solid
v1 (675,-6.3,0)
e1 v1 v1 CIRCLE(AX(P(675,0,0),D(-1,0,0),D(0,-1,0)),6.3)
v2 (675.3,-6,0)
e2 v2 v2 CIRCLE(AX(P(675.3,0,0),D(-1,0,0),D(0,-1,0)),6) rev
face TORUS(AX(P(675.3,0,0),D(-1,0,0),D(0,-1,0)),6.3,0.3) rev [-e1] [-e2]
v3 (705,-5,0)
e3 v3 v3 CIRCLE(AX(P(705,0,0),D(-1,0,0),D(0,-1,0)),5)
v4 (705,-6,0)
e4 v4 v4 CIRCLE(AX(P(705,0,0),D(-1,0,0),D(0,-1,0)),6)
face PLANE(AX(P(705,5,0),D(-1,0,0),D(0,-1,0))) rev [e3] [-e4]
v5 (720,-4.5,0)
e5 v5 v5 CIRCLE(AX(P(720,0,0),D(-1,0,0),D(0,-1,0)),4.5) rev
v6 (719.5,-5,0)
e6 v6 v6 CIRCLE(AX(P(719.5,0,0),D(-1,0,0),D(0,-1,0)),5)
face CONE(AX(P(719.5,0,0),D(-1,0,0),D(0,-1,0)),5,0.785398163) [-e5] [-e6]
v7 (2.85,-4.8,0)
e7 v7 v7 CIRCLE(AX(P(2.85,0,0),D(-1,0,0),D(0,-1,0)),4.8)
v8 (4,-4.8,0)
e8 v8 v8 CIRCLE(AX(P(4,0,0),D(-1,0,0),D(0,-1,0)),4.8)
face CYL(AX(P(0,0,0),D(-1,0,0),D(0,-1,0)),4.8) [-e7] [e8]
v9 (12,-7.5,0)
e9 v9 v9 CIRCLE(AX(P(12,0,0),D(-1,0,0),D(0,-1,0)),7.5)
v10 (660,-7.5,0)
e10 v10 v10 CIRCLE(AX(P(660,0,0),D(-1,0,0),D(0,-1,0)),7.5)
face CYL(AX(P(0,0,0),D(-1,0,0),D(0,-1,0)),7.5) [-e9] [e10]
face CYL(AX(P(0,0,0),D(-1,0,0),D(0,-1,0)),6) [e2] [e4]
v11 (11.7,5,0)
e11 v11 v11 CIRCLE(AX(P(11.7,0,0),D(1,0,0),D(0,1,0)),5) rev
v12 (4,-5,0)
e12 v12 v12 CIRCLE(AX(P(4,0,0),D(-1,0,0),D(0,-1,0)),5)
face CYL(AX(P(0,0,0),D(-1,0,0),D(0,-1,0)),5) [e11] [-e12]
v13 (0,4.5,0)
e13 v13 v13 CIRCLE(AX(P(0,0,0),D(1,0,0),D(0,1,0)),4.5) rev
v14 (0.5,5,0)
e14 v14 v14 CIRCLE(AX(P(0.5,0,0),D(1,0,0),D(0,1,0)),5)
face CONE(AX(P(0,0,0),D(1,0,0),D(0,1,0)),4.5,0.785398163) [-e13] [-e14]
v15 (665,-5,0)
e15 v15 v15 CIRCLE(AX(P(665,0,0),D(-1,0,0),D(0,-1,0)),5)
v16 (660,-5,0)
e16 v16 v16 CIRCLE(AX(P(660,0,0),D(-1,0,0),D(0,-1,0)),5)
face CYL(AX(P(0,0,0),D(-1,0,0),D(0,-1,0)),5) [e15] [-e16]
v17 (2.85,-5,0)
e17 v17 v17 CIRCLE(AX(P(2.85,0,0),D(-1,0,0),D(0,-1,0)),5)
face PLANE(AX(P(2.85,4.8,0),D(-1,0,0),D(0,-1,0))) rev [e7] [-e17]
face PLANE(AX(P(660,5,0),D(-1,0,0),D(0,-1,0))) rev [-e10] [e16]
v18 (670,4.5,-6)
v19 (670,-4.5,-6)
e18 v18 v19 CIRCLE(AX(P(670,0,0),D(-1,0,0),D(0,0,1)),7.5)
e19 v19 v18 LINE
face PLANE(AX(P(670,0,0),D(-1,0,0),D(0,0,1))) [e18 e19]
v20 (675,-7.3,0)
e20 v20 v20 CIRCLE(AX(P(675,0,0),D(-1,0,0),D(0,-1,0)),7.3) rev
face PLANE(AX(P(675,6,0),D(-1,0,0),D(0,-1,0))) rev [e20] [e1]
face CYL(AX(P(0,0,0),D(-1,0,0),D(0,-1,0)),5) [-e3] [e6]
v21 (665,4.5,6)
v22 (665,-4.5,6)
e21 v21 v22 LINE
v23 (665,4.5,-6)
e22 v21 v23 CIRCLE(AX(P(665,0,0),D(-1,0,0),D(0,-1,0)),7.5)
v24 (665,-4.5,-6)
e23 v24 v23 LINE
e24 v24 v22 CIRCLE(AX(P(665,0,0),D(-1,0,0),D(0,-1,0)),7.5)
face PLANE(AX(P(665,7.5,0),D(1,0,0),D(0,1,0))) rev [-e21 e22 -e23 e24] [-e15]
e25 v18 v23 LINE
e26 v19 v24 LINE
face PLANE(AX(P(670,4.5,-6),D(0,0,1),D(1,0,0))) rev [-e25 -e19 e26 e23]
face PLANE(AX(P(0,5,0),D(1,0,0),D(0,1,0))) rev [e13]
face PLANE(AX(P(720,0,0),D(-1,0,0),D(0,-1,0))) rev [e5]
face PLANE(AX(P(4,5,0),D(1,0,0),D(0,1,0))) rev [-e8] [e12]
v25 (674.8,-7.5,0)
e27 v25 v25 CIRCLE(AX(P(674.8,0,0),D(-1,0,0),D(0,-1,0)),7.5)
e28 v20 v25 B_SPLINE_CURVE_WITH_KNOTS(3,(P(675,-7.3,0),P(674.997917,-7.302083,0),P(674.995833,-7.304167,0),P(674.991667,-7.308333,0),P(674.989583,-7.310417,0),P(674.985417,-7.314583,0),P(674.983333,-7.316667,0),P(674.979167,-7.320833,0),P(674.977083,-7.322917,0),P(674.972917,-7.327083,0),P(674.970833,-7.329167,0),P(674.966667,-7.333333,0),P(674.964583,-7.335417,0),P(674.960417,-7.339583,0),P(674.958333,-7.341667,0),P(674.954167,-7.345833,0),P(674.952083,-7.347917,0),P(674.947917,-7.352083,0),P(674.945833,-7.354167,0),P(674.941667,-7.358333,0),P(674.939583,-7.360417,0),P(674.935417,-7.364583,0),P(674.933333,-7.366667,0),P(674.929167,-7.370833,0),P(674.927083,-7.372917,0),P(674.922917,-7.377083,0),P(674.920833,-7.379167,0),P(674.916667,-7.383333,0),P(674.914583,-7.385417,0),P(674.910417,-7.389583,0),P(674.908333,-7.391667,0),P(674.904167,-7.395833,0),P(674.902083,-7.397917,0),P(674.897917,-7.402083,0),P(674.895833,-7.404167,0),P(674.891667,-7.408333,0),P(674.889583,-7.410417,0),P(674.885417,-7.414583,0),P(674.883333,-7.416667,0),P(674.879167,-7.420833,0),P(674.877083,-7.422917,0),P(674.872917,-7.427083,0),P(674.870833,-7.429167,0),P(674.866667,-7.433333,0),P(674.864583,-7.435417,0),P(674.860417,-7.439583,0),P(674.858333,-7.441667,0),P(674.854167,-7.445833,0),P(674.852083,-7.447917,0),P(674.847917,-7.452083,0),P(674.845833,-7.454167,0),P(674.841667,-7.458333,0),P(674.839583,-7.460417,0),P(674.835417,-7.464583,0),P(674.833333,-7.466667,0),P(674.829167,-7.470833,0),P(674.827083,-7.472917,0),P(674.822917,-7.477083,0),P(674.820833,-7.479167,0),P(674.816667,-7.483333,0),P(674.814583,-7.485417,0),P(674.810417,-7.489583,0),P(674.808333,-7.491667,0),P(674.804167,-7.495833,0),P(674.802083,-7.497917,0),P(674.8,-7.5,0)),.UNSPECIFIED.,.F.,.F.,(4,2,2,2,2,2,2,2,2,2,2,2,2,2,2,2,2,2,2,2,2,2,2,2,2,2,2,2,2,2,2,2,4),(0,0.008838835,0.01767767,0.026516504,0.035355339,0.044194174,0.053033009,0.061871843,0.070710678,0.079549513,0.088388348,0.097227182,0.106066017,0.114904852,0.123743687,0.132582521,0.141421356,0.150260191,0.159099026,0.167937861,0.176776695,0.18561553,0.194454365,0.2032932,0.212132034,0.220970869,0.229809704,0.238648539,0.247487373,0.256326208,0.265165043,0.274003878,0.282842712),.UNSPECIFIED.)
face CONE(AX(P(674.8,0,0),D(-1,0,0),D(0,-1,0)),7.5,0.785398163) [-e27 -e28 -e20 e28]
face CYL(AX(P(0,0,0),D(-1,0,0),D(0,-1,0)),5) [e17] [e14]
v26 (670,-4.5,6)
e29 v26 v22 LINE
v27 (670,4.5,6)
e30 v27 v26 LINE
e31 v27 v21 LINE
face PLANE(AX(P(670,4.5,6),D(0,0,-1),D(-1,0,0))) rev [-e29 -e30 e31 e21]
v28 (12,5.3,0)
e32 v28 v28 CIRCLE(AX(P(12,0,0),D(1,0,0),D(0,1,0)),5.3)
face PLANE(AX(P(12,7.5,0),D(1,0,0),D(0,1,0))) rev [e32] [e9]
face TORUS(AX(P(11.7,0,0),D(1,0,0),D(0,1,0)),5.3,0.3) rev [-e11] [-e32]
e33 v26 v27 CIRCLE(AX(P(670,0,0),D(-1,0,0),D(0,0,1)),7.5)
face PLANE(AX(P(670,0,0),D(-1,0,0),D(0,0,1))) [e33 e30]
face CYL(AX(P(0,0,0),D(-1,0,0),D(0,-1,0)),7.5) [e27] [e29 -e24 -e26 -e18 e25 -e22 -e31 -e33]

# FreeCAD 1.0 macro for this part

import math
import FreeCAD as App
import Part
import Sketcher
from FreeCAD import Vector


def edges_at(feature, points):
    """Names of the edges that pass closest to the given points."""
    edges = feature.Shape.Edges
    near = lambda p: min(range(len(edges)), key=lambda i: edges[i].distToShape(Part.Vertex(*p))[0])
    return sorted({f"Edge{near(p) + 1}" for p in points})

doc = App.newDocument("Part")
body = doc.addObject("PartDesign::Body", "Body")

sketch1 = body.newObject("Sketcher::SketchObject", "Sketch")
sketch1.AttachmentSupport = (doc.getObject("XY_Plane"), [""])
sketch1.MapMode = "FlatFace"
sketch1.addGeometry([
    Part.LineSegment(Vector(675, 7.5, 0), Vector(665, 7.5, 0)),
    Part.LineSegment(Vector(665, 7.5, 0), Vector(665, 5, 0)),
    Part.LineSegment(Vector(665, 5, 0), Vector(660, 5, 0)),
    Part.LineSegment(Vector(660, 5, 0), Vector(660, 7.5, 0)),
    Part.LineSegment(Vector(660, 7.5, 0), Vector(12, 7.5, 0)),
    Part.LineSegment(Vector(12, 7.5, 0), Vector(12, 5, 0)),
    Part.LineSegment(Vector(12, 5, 0), Vector(4, 5, 0)),
    Part.LineSegment(Vector(4, 5, 0), Vector(4, 4.8, 0)),
    Part.LineSegment(Vector(4, 4.8, 0), Vector(2.85, 4.8, 0)),
    Part.LineSegment(Vector(2.85, 4.8, 0), Vector(2.85, 5, 0)),
    Part.LineSegment(Vector(2.85, 5, 0), Vector(0, 5, 0)),
    Part.LineSegment(Vector(0, 5, 0), Vector(0, 0, 0)),
    Part.LineSegment(Vector(0, 0, 0), Vector(720, 0, 0)),
    Part.LineSegment(Vector(720, 0, 0), Vector(720, 5, 0)),
    Part.LineSegment(Vector(720, 5, 0), Vector(705, 5, 0)),
    Part.LineSegment(Vector(705, 5, 0), Vector(705, 6, 0)),
    Part.LineSegment(Vector(705, 6, 0), Vector(675, 6, 0)),
    Part.LineSegment(Vector(675, 6, 0), Vector(675, 7.5, 0)),
], False)
sketch1.addConstraint([
    Sketcher.Constraint("Coincident", 0, 2, 1, 1),
    Sketcher.Constraint("Coincident", 1, 2, 2, 1),
    Sketcher.Constraint("Coincident", 2, 2, 3, 1),
    Sketcher.Constraint("Coincident", 3, 2, 4, 1),
    Sketcher.Constraint("Coincident", 4, 2, 5, 1),
    Sketcher.Constraint("Coincident", 5, 2, 6, 1),
    Sketcher.Constraint("Coincident", 6, 2, 7, 1),
    Sketcher.Constraint("Coincident", 7, 2, 8, 1),
    Sketcher.Constraint("Coincident", 8, 2, 9, 1),
    Sketcher.Constraint("Coincident", 9, 2, 10, 1),
    Sketcher.Constraint("Coincident", 10, 2, 11, 1),
    Sketcher.Constraint("Coincident", 11, 2, 12, 1),
    Sketcher.Constraint("Coincident", 12, 2, 13, 1),
    Sketcher.Constraint("Coincident", 13, 2, 14, 1),
    Sketcher.Constraint("Coincident", 14, 2, 15, 1),
    Sketcher.Constraint("Coincident", 15, 2, 16, 1),
    Sketcher.Constraint("Coincident", 16, 2, 17, 1),
    Sketcher.Constraint("Coincident", 17, 2, 0, 1),
    Sketcher.Constraint("Horizontal", 0),
    Sketcher.Constraint("Vertical", 1),
    Sketcher.Constraint("Horizontal", 2),
    Sketcher.Constraint("Vertical", 3),
    Sketcher.Constraint("Horizontal", 4),
    Sketcher.Constraint("Vertical", 5),
    Sketcher.Constraint("Horizontal", 6),
    Sketcher.Constraint("Vertical", 7),
    Sketcher.Constraint("Horizontal", 8),
    Sketcher.Constraint("Vertical", 9),
    Sketcher.Constraint("Horizontal", 10),
    Sketcher.Constraint("Vertical", 11),
    Sketcher.Constraint("Horizontal", 12),
    Sketcher.Constraint("Vertical", 13),
    Sketcher.Constraint("Horizontal", 14),
    Sketcher.Constraint("Vertical", 15),
    Sketcher.Constraint("Horizontal", 16),
    Sketcher.Constraint("Vertical", 17),
    Sketcher.Constraint("Coincident", 11, 2, -1, 1),
    Sketcher.Constraint("Horizontal", 0, 2, 3, 2),
    Sketcher.Constraint("Horizontal", 2, 2, 5, 2),
    Sketcher.Constraint("Horizontal", 6, 2, 9, 2),
    Sketcher.Constraint("Horizontal", 10, 2, 13, 2),
    Sketcher.Constraint("Equal", 2, 11),
    Sketcher.Constraint("DistanceX", 0, 2, 0, 1, 10.0),
    Sketcher.Constraint("DistanceX", 2, 2, 2, 1, 5.0),
    Sketcher.Constraint("DistanceX", 4, 2, 4, 1, 648.0),
    Sketcher.Constraint("DistanceX", 6, 2, 6, 1, 8.0),
    Sketcher.Constraint("DistanceX", 12, 1, 12, 2, 720.0),
    Sketcher.Constraint("DistanceX", 14, 2, 14, 1, 15.0),
    Sketcher.Constraint("DistanceX", 16, 2, 16, 1, 30.0),
    Sketcher.Constraint("DistanceY", 15, 1, 15, 2, 1.0),
    Sketcher.Constraint("DistanceY", 1, 2, 1, 1, 2.5),
    Sketcher.Constraint("DistanceY", 7, 2, 7, 1, 0.2),
    Sketcher.Constraint("DistanceX", 8, 2, 8, 1, 1.15),
])
revolution = body.newObject("PartDesign::Revolution", "Revolution")
revolution.Profile = sketch1
revolution.ReferenceAxis = (sketch1, ["H_Axis"])
revolution.Angle = 360
doc.recompute()

fillet = body.newObject("PartDesign::Fillet", "Fillet")
fillet.Base = (revolution, edges_at(revolution, [(675, 6, 0), (12, 5, 0)]))
fillet.Radius = 0.3
doc.recompute()

chamfer = body.newObject("PartDesign::Chamfer", "Chamfer")
chamfer.Base = (fillet, edges_at(fillet, [(720, 5, 0), (0, 5, 0)]))
chamfer.Size = 0.5
doc.recompute()

chamfer2 = body.newObject("PartDesign::Chamfer", "Chamfer001")
chamfer2.Base = (chamfer, edges_at(chamfer, [(675, 7.5, 0)]))
chamfer2.Size = 0.2

sketch2 = body.newObject("Sketcher::SketchObject", "Sketch001")
sketch2.AttachmentSupport = (doc.getObject("YZ_Plane"), [""])
sketch2.MapMode = "FlatFace"
sketch2.AttachmentOffset = App.Placement(Vector(0, 0, 665), App.Rotation())
sketch2.addGeometry([
    Part.LineSegment(Vector(-4, -6, 0), Vector(4, -6, 0)),
    Part.ArcOfCircle(Part.Circle(Vector(0, 0, 0), Vector(0, 0, 1), 8), math.radians(-127), math.radians(-53)),
    Part.LineSegment(Vector(4, 6, 0), Vector(-4, 6, 0)),
    Part.ArcOfCircle(Part.Circle(Vector(0, 0, 0), Vector(0, 0, 1), 8), math.radians(53), math.radians(127)),
], False)
sketch2.addConstraint([
    Sketcher.Constraint("Coincident", 0, 1, 1, 1),
    Sketcher.Constraint("Coincident", 1, 2, 0, 2),
    Sketcher.Constraint("Coincident", 2, 1, 3, 1),
    Sketcher.Constraint("Coincident", 3, 2, 2, 2),
    Sketcher.Constraint("Horizontal", 0),
    Sketcher.Constraint("Horizontal", 2),
    Sketcher.Constraint("Coincident", 1, 3, -1, 1),
    Sketcher.Constraint("Coincident", 3, 3, -1, 1),
    Sketcher.Constraint("Equal", 1, 3),
    Sketcher.Constraint("Vertical", 1, 2, 2, 1),
    Sketcher.Constraint("Radius", 1, 7.5),
    Sketcher.Constraint("DistanceX", 0, 1, 0, 2, 9.0),
])
pocket1 = body.newObject("PartDesign::Pocket", "Pocket")
pocket1.Profile = sketch2
pocket1.Length = 5
pocket1.Reversed = True

doc.recompute()
